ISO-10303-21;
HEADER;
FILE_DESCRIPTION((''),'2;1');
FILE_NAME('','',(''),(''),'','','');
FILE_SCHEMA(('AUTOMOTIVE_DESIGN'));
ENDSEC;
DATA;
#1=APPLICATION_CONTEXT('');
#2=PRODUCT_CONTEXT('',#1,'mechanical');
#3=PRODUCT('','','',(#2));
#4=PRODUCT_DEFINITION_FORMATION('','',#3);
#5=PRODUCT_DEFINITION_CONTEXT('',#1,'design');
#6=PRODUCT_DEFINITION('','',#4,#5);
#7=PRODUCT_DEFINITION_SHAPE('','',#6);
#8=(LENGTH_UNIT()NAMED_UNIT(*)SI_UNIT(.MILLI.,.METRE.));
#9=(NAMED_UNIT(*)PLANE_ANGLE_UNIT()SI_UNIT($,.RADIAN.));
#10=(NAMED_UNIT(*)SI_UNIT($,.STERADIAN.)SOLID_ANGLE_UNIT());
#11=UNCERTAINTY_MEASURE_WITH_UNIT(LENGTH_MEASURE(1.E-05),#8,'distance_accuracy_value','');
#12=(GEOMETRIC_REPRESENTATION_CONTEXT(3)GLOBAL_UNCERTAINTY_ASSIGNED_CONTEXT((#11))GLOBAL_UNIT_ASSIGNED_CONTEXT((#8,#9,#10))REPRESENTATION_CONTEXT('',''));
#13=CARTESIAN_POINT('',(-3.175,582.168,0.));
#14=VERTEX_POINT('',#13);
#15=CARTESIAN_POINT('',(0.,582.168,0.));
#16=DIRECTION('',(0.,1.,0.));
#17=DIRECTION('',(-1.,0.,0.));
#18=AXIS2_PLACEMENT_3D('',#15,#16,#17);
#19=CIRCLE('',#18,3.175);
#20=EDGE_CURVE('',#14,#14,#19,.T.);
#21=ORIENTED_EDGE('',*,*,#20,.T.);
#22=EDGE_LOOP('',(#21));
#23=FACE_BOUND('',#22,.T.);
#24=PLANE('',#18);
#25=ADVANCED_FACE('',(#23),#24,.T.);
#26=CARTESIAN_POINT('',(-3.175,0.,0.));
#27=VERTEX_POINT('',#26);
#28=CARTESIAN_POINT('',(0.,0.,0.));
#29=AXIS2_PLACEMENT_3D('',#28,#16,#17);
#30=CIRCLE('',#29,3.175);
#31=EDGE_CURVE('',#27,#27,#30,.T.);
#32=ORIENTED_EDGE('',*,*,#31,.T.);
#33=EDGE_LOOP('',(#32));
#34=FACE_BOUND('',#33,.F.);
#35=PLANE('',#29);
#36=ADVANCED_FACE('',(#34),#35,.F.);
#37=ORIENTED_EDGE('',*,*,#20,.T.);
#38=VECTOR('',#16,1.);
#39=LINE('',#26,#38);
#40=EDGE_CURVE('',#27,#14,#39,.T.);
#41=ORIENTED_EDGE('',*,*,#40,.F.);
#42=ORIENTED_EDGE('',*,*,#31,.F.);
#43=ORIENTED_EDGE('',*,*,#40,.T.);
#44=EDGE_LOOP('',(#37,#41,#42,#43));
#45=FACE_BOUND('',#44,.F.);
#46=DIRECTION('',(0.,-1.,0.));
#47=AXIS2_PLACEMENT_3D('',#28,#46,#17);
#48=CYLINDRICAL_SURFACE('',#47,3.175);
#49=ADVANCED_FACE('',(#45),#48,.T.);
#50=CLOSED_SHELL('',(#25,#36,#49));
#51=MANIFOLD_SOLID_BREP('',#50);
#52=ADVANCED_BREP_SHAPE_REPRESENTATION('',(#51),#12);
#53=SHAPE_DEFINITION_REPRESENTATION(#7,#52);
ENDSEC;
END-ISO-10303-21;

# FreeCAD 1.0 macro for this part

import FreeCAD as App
import Part
import Sketcher
from FreeCAD import Vector
Q = App.Units.Quantity

doc = App.newDocument("Part")
params = doc.addObject("Spreadsheet::Sheet", "Params")
for row, (alias, value) in enumerate([
    ("sketch1_diameter", "0.25 in"),
    ("pad1_length", "22.92 in"),
], start=1):
    params.set(f"A{row}", alias)
    params.set(f"B{row}", "=" + value)
    params.setAlias(f"B{row}", alias)

body = doc.addObject("PartDesign::Body", "Body")

# Sketch on XZ plane
sketch1 = body.newObject("Sketcher::SketchObject", "Sketch")
sketch1.AttachmentSupport = (doc.getObject("XZ_Plane"), [""])
sketch1.MapMode = "FlatFace"
sketch1.addGeometry(Part.Circle(Vector(0, 0, 0), Vector(0, 0, 1), 3.2), False)
sketch1.addConstraint(Sketcher.Constraint("Coincident", 0, 3, -1, 1))
sketch1.addConstraint(Sketcher.Constraint("Diameter", 0, Q("0.25 in")))
sketch1.setExpression("Constraints[1]", "Params.sketch1_diameter")
pad1 = body.newObject("PartDesign::Pad", "Pad")
pad1.Profile = sketch1
pad1.setExpression("Length", "Params.pad1_length")
pad1.Reversed = True

doc.recompute()
